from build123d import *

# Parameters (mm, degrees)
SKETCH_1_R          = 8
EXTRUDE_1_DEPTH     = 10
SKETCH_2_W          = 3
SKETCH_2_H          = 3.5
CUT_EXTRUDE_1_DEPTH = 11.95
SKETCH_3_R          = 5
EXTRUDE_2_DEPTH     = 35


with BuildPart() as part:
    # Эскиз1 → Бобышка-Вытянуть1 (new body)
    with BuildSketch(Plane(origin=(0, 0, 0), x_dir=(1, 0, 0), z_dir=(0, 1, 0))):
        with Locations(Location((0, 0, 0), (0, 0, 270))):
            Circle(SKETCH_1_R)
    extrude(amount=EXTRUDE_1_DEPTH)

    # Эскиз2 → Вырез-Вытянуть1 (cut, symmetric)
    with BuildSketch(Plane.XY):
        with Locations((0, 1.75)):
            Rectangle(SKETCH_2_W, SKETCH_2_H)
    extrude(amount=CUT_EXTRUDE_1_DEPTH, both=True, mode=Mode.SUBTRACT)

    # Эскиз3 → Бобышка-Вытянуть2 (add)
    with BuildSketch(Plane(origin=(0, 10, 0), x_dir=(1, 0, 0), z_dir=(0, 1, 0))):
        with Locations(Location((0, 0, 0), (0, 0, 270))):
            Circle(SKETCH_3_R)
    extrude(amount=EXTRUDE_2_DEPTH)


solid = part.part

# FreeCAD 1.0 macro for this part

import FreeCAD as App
import Part
import Sketcher


def add_polygon(sketch, points):
    """Adds a closed chain of lines whose ends are joined by coincident constraints."""
    first, n = sketch.GeometryCount, len(points)
    for a, b in zip(points, points[1:] + points[:1]):
        sketch.addGeometry(Part.LineSegment(App.Vector(*a, 0), App.Vector(*b, 0)), False)
    for i in range(n):
        sketch.addConstraint(Sketcher.Constraint("Coincident", first + i, 2, first + (i + 1) % n, 1))

doc = App.newDocument("Part")
body = doc.addObject("PartDesign::Body", "Body")

sketch1 = body.newObject("Sketcher::SketchObject", "Sketch")
sketch1.AttachmentSupport = (doc.getObject("XZ_Plane"), [""])
sketch1.MapMode = "FlatFace"
sketch1.addGeometry(Part.Circle(App.Vector(0, 0, 0), App.Vector(0, 0, 1), 8), False)
sketch1.addConstraint([
    Sketcher.Constraint("Coincident", 0, 3, -1, 1),
    Sketcher.Constraint("Diameter", 0, 16.0),
])
pad1 = body.newObject("PartDesign::Pad", "Pad")
pad1.Profile = sketch1
pad1.Length = 10
pad1.Reversed = True

sketch2 = body.newObject("Sketcher::SketchObject", "Sketch001")
sketch2.AttachmentSupport = (doc.getObject("XY_Plane"), [""])
sketch2.MapMode = "FlatFace"
add_polygon(sketch2, [(-1.5, 3.5), (-1.5, 0), (1.5, 0), (1.5, 3.5)])
sketch2.addConstraint([
    Sketcher.Constraint("Vertical", 0),
    Sketcher.Constraint("Horizontal", 1),
    Sketcher.Constraint("Vertical", 2),
    Sketcher.Constraint("Horizontal", 3),
    Sketcher.Constraint("Symmetric", 0, 2, 1, 2, -1, 1),
    Sketcher.Constraint("DistanceX", 1, 1, 1, 2, 3.0),
    Sketcher.Constraint("DistanceY", 0, 2, 0, 1, 3.5),
])
pocket1 = body.newObject("PartDesign::Pocket", "Pocket")
pocket1.Profile = sketch2
pocket1.Length = 23.9
pocket1.Midplane = True

sketch3 = body.newObject("Sketcher::SketchObject", "Sketch002")
sketch3.AttachmentSupport = (doc.getObject("XZ_Plane"), [""])
sketch3.MapMode = "FlatFace"
sketch3.AttachmentOffset = App.Placement(App.Vector(0, 0, -10), App.Rotation())
sketch3.addGeometry(Part.Circle(App.Vector(0, 0, 0), App.Vector(0, 0, 1), 5), False)
sketch3.addConstraint([
    Sketcher.Constraint("Coincident", 0, 3, -1, 1),
    Sketcher.Constraint("Diameter", 0, 10.0),
])
pad2 = body.newObject("PartDesign::Pad", "Pad001")
pad2.Profile = sketch3
pad2.Length = 35
pad2.Reversed = True

doc.recompute()
